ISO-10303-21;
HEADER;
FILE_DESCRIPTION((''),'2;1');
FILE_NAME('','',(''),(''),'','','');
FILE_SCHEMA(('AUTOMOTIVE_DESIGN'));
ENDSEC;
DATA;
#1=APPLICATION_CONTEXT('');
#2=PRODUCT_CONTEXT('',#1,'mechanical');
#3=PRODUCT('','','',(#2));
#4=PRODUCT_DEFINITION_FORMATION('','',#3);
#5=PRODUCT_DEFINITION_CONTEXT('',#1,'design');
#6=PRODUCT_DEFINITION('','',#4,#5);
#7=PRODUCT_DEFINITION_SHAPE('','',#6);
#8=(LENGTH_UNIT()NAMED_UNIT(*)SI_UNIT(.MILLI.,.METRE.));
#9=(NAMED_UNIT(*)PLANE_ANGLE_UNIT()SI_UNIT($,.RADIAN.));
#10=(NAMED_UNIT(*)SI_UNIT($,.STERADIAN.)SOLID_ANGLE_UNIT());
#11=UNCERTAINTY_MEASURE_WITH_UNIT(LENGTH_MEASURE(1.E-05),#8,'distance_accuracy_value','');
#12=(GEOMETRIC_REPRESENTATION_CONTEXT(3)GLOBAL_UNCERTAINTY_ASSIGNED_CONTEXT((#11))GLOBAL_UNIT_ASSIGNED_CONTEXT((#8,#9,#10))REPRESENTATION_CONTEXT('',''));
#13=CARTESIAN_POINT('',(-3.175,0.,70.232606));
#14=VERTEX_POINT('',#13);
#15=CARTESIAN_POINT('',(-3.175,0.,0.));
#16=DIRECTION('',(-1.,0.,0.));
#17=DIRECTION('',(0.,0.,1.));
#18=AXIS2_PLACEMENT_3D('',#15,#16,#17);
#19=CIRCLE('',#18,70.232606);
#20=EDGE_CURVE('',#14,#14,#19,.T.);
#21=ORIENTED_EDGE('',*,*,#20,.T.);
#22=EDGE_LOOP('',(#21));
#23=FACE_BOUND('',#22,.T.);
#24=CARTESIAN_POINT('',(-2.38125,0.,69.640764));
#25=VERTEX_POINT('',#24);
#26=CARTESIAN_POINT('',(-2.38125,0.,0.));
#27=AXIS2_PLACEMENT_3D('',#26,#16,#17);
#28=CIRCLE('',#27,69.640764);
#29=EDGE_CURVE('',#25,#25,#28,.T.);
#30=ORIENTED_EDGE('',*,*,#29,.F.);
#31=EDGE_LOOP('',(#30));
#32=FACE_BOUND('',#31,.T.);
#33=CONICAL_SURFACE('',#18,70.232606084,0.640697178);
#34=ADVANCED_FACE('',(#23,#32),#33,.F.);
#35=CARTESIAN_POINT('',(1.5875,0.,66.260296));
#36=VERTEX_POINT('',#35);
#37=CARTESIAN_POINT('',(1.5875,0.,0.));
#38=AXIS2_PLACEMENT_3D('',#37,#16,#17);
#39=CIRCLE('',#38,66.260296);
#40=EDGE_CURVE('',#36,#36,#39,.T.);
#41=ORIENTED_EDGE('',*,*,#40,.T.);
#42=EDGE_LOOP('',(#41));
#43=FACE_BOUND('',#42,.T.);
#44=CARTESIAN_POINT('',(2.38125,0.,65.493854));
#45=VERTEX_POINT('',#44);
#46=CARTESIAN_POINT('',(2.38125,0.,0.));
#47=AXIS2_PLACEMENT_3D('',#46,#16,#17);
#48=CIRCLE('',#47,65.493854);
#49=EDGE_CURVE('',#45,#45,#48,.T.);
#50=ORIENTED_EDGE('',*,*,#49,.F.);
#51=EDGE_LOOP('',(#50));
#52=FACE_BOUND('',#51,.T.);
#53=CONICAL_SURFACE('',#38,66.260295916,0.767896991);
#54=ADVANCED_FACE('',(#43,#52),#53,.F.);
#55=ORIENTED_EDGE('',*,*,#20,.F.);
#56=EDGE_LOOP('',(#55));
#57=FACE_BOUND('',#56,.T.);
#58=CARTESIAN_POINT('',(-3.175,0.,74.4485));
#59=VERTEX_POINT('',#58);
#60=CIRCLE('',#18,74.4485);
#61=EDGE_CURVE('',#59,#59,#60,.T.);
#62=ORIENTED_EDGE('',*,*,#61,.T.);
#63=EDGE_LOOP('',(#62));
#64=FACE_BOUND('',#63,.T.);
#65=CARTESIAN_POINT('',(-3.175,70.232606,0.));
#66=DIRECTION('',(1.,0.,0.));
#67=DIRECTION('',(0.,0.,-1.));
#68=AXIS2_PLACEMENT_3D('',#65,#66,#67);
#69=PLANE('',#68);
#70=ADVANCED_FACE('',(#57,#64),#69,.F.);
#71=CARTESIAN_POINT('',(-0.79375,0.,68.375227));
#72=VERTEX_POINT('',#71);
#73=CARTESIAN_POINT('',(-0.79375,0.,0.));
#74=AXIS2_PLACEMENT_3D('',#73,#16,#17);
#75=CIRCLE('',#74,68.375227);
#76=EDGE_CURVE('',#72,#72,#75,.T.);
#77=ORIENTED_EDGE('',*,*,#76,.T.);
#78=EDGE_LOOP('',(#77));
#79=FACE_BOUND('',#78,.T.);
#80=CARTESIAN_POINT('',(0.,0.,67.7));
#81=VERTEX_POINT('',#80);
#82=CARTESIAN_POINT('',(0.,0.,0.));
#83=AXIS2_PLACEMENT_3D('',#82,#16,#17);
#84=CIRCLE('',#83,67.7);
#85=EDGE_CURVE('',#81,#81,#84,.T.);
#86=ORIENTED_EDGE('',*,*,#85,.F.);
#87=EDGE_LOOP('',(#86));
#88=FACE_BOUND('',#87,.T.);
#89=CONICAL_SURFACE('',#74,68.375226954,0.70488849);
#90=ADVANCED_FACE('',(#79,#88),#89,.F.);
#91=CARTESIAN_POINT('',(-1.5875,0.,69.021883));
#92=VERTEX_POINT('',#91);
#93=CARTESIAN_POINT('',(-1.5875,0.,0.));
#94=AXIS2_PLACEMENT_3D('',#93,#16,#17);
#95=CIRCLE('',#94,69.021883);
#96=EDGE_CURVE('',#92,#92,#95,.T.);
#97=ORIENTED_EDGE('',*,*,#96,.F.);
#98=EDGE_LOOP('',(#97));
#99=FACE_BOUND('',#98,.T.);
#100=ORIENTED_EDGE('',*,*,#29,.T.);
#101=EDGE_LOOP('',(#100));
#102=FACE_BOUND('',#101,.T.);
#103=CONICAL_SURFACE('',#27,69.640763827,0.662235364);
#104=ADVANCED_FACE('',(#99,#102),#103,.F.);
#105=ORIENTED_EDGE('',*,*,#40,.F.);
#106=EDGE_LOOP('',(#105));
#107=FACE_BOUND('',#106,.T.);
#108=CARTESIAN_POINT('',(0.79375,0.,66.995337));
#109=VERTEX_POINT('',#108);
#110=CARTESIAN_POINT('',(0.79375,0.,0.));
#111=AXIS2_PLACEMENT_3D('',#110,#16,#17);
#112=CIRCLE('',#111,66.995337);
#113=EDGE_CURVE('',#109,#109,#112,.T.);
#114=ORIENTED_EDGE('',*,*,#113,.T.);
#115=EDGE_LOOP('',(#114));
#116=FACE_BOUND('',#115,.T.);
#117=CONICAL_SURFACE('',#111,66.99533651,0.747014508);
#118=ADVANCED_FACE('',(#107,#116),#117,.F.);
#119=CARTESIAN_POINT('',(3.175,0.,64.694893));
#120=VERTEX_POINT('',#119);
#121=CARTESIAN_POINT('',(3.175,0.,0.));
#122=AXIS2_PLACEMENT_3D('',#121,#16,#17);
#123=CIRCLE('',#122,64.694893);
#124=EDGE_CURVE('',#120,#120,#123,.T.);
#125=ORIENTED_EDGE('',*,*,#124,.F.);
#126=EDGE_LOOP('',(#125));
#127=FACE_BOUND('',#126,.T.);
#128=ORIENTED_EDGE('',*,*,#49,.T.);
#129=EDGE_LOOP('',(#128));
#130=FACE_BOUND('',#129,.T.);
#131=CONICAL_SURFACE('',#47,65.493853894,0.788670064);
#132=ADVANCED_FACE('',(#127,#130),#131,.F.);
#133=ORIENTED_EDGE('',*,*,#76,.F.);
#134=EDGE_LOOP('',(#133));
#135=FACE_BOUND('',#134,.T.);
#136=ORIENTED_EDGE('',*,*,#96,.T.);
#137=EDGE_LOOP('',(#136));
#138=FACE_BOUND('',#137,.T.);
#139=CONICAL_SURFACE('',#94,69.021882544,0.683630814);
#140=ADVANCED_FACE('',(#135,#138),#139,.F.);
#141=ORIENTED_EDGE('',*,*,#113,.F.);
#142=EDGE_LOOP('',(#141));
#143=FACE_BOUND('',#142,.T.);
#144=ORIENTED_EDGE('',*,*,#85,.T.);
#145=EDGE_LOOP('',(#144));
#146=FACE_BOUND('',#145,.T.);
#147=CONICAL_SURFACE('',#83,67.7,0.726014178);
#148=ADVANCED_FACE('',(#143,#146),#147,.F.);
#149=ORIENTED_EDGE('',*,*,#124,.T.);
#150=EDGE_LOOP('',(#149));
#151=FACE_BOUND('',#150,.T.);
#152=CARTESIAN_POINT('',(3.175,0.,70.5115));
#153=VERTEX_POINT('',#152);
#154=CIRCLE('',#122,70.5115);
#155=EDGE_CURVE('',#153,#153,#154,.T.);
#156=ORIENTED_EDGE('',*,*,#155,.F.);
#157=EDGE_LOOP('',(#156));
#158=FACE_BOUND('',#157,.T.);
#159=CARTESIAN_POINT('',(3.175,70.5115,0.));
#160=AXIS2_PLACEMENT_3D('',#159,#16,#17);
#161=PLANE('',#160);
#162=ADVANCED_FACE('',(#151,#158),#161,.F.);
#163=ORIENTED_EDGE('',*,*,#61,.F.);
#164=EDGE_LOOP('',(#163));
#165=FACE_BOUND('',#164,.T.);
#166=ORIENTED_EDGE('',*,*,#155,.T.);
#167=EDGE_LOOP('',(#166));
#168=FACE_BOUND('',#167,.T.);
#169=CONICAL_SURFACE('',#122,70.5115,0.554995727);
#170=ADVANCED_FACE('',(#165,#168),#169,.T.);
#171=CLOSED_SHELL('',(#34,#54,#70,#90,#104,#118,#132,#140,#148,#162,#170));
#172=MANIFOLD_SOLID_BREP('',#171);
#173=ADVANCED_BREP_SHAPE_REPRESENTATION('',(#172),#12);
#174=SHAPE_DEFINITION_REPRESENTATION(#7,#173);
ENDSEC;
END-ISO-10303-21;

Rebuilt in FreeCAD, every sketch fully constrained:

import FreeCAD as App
import Part
import Sketcher

V = App.Vector


def add_polygon(sketch, points):
    """Adds a closed chain of lines whose ends are joined by coincident constraints."""
    first, n = sketch.GeometryCount, len(points)
    for a, b in zip(points, points[1:] + points[:1]):
        sketch.addGeometry(Part.LineSegment(App.Vector(*a, 0), App.Vector(*b, 0)), False)
    for i in range(n):
        sketch.addConstraint(Sketcher.Constraint("Coincident", first + i, 2, first + (i + 1) % n, 1))

doc = App.newDocument("Part")
params = doc.addObject("Spreadsheet::Sheet", "Params")
for row, (alias, value) in enumerate([
    ("revolution_angle", "360 deg"),
], start=1):
    params.set(f"A{row}", alias)
    params.set(f"B{row}", "=" + value)
    params.setAlias(f"B{row}", alias)

body = doc.addObject("PartDesign::Body", "Body")

sketch1 = doc.addObject("Sketcher::SketchObject", "Sketch")
body.addObject(sketch1)
sketch1.AttachmentSupport = (doc.XY_Plane, [""])
sketch1.MapMode = "FlatFace"
add_polygon(sketch1, [(2.4, 65.5), (3.2, 64.7), (3.2, 70.5), (-3.2, 74.4), (-3.2, 70.2), (-2.4, 69.6), (-1.6, 69), (-0.8, 68.4), (0, 67.7), (0.8, 67), (1.6, 66.3)])
sketch1.addConstraint([
    Sketcher.Constraint("Vertical", 1),
    Sketcher.Constraint("Vertical", 3),
    Sketcher.Constraint("PointOnObject", 7, 2, -2),
    Sketcher.Constraint("DistanceY", -1, 1, 7, 2, 67.7),
    Sketcher.Constraint("DistanceX", 2, 2, 1, 2, 6.35),
    Sketcher.Constraint("DistanceX", -1, 1, 0, 2, 3.175),
    Sketcher.Constraint("DistanceY", 1, 2, 2, 2, 3.937),
    Sketcher.Constraint("DistanceX", 4, 2, 8, 2, 3.175),
    Sketcher.Constraint("DistanceX", 5, 2, 9, 2, 3.175),
    Sketcher.Constraint("DistanceX", 6, 2, 10, 2, 3.175),
    Sketcher.Constraint("Distance", 7, 1.042099),
    Sketcher.Constraint("DistanceY", -1, 1, 1, 2, 70.5115),
    Sketcher.Constraint("DistanceX", 5, 2, -1, 1, 1.5875),
    Sketcher.Constraint("DistanceX", 4, 2, 6, 2, 1.5875),
    Sketcher.Constraint("Distance", 4, 0.990109),
    Sketcher.Constraint("Distance", 8, 1.061409),
    Sketcher.Constraint("Distance", 10, 1.103391),
    Sketcher.Constraint("DistanceY", 1, 1, 1, 2, 5.816607),
    Sketcher.Constraint("DistanceY", 3, 2, 3, 1, 4.215894),
    Sketcher.Constraint("DistanceX", 4, 2, -1, 1, 2.38125),
    Sketcher.Constraint("DistanceY", 5, 2, 4, 2, 0.618881),
    Sketcher.Constraint("DistanceY", 9, 2, 8, 2, 0.735041),
])
revolution = doc.addObject("PartDesign::Revolution", "Revolution")
body.addObject(revolution)
revolution.Profile = sketch1
revolution.ReferenceAxis = (sketch1, ["H_Axis"])
revolution.setExpression("Angle", "Params.revolution_angle")

doc.recompute()
